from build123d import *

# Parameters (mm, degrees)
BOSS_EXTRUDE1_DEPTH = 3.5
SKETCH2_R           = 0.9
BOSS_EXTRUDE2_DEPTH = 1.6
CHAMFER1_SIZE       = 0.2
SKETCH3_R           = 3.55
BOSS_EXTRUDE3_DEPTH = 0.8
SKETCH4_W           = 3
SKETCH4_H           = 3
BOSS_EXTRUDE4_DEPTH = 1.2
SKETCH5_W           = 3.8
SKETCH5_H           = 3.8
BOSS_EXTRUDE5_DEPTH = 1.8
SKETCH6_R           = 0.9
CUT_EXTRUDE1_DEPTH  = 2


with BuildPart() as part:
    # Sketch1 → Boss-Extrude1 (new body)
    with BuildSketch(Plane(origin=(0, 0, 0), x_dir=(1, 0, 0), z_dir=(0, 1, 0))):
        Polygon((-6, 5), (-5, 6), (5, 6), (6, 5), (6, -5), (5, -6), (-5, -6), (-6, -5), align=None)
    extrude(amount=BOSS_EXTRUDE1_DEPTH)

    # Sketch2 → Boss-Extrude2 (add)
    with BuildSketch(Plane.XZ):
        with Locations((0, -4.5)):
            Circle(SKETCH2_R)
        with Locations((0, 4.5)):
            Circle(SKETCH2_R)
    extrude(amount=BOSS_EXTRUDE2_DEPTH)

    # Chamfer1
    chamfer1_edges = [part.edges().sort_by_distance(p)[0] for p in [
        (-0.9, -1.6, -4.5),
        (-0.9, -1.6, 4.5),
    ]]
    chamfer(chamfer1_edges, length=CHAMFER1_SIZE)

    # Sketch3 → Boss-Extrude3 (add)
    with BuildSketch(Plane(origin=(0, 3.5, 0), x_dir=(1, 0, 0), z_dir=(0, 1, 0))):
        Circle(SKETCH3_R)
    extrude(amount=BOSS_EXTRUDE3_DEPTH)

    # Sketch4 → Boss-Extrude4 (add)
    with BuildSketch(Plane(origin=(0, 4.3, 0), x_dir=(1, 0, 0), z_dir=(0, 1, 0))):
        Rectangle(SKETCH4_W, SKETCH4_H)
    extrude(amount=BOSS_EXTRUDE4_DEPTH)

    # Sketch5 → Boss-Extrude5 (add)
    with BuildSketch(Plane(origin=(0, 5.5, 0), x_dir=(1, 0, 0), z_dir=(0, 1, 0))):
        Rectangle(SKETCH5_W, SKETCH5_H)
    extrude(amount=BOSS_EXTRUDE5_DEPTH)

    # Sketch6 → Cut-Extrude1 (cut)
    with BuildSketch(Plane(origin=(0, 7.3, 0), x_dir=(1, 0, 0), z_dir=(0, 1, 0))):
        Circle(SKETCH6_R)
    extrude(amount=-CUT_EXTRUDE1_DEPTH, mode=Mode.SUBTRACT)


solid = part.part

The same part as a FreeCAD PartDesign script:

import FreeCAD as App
import Part
import Sketcher


def edges_at(feature, points):
    """Names of the edges that pass closest to the given points."""
    edges = feature.Shape.Edges
    near = lambda p: min(range(len(edges)), key=lambda i: edges[i].distToShape(Part.Vertex(*p))[0])
    return sorted({f"Edge{near(p) + 1}" for p in points})

doc = App.newDocument("Part")
body = doc.addObject("PartDesign::Body", "Body")

sketch1 = body.newObject("Sketcher::SketchObject", "Sketch")
sketch1.AttachmentSupport = (doc.getObject("XZ_Plane"), [""])
sketch1.MapMode = "FlatFace"
sketch1.addGeometry([
    Part.LineSegment(App.Vector(-5, -6, 0), App.Vector(-6, -5, 0)),
    Part.LineSegment(App.Vector(-6, -5, 0), App.Vector(-6, 5, 0)),
    Part.LineSegment(App.Vector(-6, 5, 0), App.Vector(-5, 6, 0)),
    Part.LineSegment(App.Vector(-5, 6, 0), App.Vector(5, 6, 0)),
    Part.LineSegment(App.Vector(5, 6, 0), App.Vector(6, 5, 0)),
    Part.LineSegment(App.Vector(6, 5, 0), App.Vector(6, -5, 0)),
    Part.LineSegment(App.Vector(6, -5, 0), App.Vector(5, -6, 0)),
    Part.LineSegment(App.Vector(5, -6, 0), App.Vector(-5, -6, 0)),
], False)
sketch1.addConstraint([
    Sketcher.Constraint("Coincident", 0, 2, 1, 1),
    Sketcher.Constraint("Coincident", 1, 2, 2, 1),
    Sketcher.Constraint("Coincident", 2, 2, 3, 1),
    Sketcher.Constraint("Coincident", 3, 2, 4, 1),
    Sketcher.Constraint("Coincident", 4, 2, 5, 1),
    Sketcher.Constraint("Coincident", 5, 2, 6, 1),
    Sketcher.Constraint("Coincident", 6, 2, 7, 1),
    Sketcher.Constraint("Coincident", 7, 2, 0, 1),
    Sketcher.Constraint("Vertical", 1),
    Sketcher.Constraint("Horizontal", 3),
    Sketcher.Constraint("Vertical", 5),
    Sketcher.Constraint("Horizontal", 7),
    Sketcher.Constraint("Symmetric", 0, 2, 4, 2, -1, 1),
    Sketcher.Constraint("Symmetric", 2, 2, 6, 2, -1, 1),
    Sketcher.Constraint("Perpendicular", 0, 2),
    Sketcher.Constraint("Perpendicular", 2, 4),
    Sketcher.Constraint("Perpendicular", 4, 6),
    Sketcher.Constraint("Horizontal", 1, 2, 4, 2),
    Sketcher.Constraint("Vertical", 3, 2, 6, 2),
    Sketcher.Constraint("Equal", 7, 1),
    Sketcher.Constraint("DistanceX", 3, 1, 3, 2, 10.0),
    Sketcher.Constraint("DistanceX", 0, 2, -1, 1, 6.0),
])
pad1 = body.newObject("PartDesign::Pad", "Pad")
pad1.Profile = sketch1
pad1.Length = 3.5
pad1.Reversed = True

sketch2 = body.newObject("Sketcher::SketchObject", "Sketch001")
sketch2.AttachmentSupport = (doc.getObject("XZ_Plane"), [""])
sketch2.MapMode = "FlatFace"
sketch2.addGeometry([
    Part.Circle(App.Vector(0, -4.5, 0), App.Vector(0, 0, 1), 0.9),
    Part.Circle(App.Vector(0, 4.5, 0), App.Vector(0, 0, 1), 0.9),
], False)
sketch2.addConstraint([
    Sketcher.Constraint("Equal", 0, 1),
    Sketcher.Constraint("Symmetric", 0, 3, 1, 3, -1, 1),
    Sketcher.Constraint("PointOnObject", 0, 3, -2),
    Sketcher.Constraint("Diameter", 0, 1.8),
    Sketcher.Constraint("DistanceY", 0, 3, 1, 3, 9.0),
])
pad2 = body.newObject("PartDesign::Pad", "Pad001")
pad2.Profile = sketch2
pad2.Length = 1.6
doc.recompute()

chamfer = body.newObject("PartDesign::Chamfer", "Chamfer")
chamfer.Base = (pad2, edges_at(pad2, [(-0.9, -1.6, -4.5), (-0.9, -1.6, 4.5)]))
chamfer.Size = 0.2

sketch3 = body.newObject("Sketcher::SketchObject", "Sketch002")
sketch3.AttachmentSupport = (doc.getObject("XZ_Plane"), [""])
sketch3.MapMode = "FlatFace"
sketch3.AttachmentOffset = App.Placement(App.Vector(0, 0, -3.5), App.Rotation())
sketch3.addGeometry(Part.Circle(App.Vector(0, 0, 0), App.Vector(0, 0, 1), 3.5), False)
sketch3.addConstraint([
    Sketcher.Constraint("Coincident", 0, 3, -1, 1),
    Sketcher.Constraint("Diameter", 0, 7.1),
])
pad3 = body.newObject("PartDesign::Pad", "Pad002")
pad3.Profile = sketch3
pad3.Length = 0.8
pad3.Reversed = True

sketch4 = body.newObject("Sketcher::SketchObject", "Sketch003")
sketch4.AttachmentSupport = (doc.getObject("XZ_Plane"), [""])
sketch4.MapMode = "FlatFace"
sketch4.AttachmentOffset = App.Placement(App.Vector(0, 0, -4.3), App.Rotation())
sketch4.addGeometry([
    Part.LineSegment(App.Vector(-1.5, -1.5, 0), App.Vector(-1.5, 1.5, 0)),
    Part.LineSegment(App.Vector(-1.5, 1.5, 0), App.Vector(1.5, 1.5, 0)),
    Part.LineSegment(App.Vector(1.5, 1.5, 0), App.Vector(1.5, -1.5, 0)),
    Part.LineSegment(App.Vector(1.5, -1.5, 0), App.Vector(-1.5, -1.5, 0)),
], False)
sketch4.addConstraint([
    Sketcher.Constraint("Coincident", 0, 2, 1, 1),
    Sketcher.Constraint("Coincident", 1, 2, 2, 1),
    Sketcher.Constraint("Coincident", 2, 2, 3, 1),
    Sketcher.Constraint("Coincident", 3, 2, 0, 1),
    Sketcher.Constraint("Vertical", 0),
    Sketcher.Constraint("Horizontal", 1),
    Sketcher.Constraint("Vertical", 2),
    Sketcher.Constraint("Horizontal", 3),
    Sketcher.Constraint("Symmetric", 0, 2, 2, 2, -1, 1),
    Sketcher.Constraint("Equal", 3, 0),
    Sketcher.Constraint("DistanceX", 1, 1, 1, 2, 3.0),
])
pad4 = body.newObject("PartDesign::Pad", "Pad003")
pad4.Profile = sketch4
pad4.Length = 1.2
pad4.Reversed = True

sketch5 = body.newObject("Sketcher::SketchObject", "Sketch004")
sketch5.AttachmentSupport = (doc.getObject("XZ_Plane"), [""])
sketch5.MapMode = "FlatFace"
sketch5.AttachmentOffset = App.Placement(App.Vector(0, 0, -5.5), App.Rotation())
sketch5.addGeometry([
    Part.LineSegment(App.Vector(-1.9, -1.9, 0), App.Vector(-1.9, 1.9, 0)),
    Part.LineSegment(App.Vector(-1.9, 1.9, 0), App.Vector(1.9, 1.9, 0)),
    Part.LineSegment(App.Vector(1.9, 1.9, 0), App.Vector(1.9, -1.9, 0)),
    Part.LineSegment(App.Vector(1.9, -1.9, 0), App.Vector(-1.9, -1.9, 0)),
], False)
sketch5.addConstraint([
    Sketcher.Constraint("Coincident", 0, 2, 1, 1),
    Sketcher.Constraint("Coincident", 1, 2, 2, 1),
    Sketcher.Constraint("Coincident", 2, 2, 3, 1),
    Sketcher.Constraint("Coincident", 3, 2, 0, 1),
    Sketcher.Constraint("Vertical", 0),
    Sketcher.Constraint("Horizontal", 1),
    Sketcher.Constraint("Vertical", 2),
    Sketcher.Constraint("Horizontal", 3),
    Sketcher.Constraint("Symmetric", 0, 2, 2, 2, -1, 1),
    Sketcher.Constraint("Equal", 3, 0),
    Sketcher.Constraint("DistanceX", 1, 1, 1, 2, 3.8),
])
pad5 = body.newObject("PartDesign::Pad", "Pad004")
pad5.Profile = sketch5
pad5.Length = 1.8
pad5.Reversed = True

sketch6 = body.newObject("Sketcher::SketchObject", "Sketch005")
sketch6.AttachmentSupport = (doc.getObject("XZ_Plane"), [""])
sketch6.MapMode = "FlatFace"
sketch6.AttachmentOffset = App.Placement(App.Vector(0, 0, -7.3), App.Rotation())
sketch6.addGeometry(Part.Circle(App.Vector(0, 0, 0), App.Vector(0, 0, 1), 0.9), False)
sketch6.addConstraint([
    Sketcher.Constraint("Coincident", 0, 3, -1, 1),
    Sketcher.Constraint("Diameter", 0, 1.8),
])
pocket1 = body.newObject("PartDesign::Pocket", "Pocket")
pocket1.Profile = sketch6
pocket1.Length = 2
pocket1.Reversed = True

doc.recompute()
